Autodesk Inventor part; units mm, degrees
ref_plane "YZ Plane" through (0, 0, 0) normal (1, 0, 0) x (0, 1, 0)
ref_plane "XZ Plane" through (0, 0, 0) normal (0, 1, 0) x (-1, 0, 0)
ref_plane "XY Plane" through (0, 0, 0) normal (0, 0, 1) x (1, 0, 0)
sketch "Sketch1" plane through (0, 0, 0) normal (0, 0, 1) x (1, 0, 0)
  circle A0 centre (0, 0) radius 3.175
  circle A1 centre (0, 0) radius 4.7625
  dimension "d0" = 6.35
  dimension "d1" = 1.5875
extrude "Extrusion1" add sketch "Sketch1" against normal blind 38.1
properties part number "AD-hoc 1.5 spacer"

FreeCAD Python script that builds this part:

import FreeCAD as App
import Part
import Sketcher
from FreeCAD import Vector
Q = App.Units.Quantity

doc = App.newDocument("Part")
params = doc.addObject("Spreadsheet::Sheet", "Params")
for row, (alias, value) in enumerate([
    ("sketch1_diameter", "0.25 in"),
    ("sketch1_diameter2", "0.375 in"),
    ("pad1_length", "1.5 in"),
], start=1):
    params.set(f"A{row}", alias)
    params.set(f"B{row}", "=" + value)
    params.setAlias(f"B{row}", alias)

body = doc.addObject("PartDesign::Body", "Body")

# Sketch on XY plane
sketch1 = body.newObject("Sketcher::SketchObject", "Sketch")
sketch1.AttachmentSupport = (doc.getObject("XY_Plane"), [""])
sketch1.MapMode = "FlatFace"
sketch1.addGeometry(Part.Circle(Vector(0, 0, 0), Vector(0, 0, 1), 4.8), False)
sketch1.addGeometry(Part.Circle(Vector(0, 0, 0), Vector(0, 0, 1), 3.2), False)
sketch1.addConstraint(Sketcher.Constraint("Coincident", 0, 3, -1, 1))
sketch1.addConstraint(Sketcher.Constraint("Coincident", 1, 3, -1, 1))
sketch1.addConstraint(Sketcher.Constraint("Diameter", 1, Q("0.25 in")))
sketch1.addConstraint(Sketcher.Constraint("Diameter", 0, Q("0.375 in")))
sketch1.setExpression("Constraints[2]", "Params.sketch1_diameter")
sketch1.setExpression("Constraints[3]", "Params.sketch1_diameter2")
pad1 = body.newObject("PartDesign::Pad", "Pad")
pad1.Profile = sketch1
pad1.setExpression("Length", "Params.pad1_length")
pad1.Reversed = True

doc.recompute()
